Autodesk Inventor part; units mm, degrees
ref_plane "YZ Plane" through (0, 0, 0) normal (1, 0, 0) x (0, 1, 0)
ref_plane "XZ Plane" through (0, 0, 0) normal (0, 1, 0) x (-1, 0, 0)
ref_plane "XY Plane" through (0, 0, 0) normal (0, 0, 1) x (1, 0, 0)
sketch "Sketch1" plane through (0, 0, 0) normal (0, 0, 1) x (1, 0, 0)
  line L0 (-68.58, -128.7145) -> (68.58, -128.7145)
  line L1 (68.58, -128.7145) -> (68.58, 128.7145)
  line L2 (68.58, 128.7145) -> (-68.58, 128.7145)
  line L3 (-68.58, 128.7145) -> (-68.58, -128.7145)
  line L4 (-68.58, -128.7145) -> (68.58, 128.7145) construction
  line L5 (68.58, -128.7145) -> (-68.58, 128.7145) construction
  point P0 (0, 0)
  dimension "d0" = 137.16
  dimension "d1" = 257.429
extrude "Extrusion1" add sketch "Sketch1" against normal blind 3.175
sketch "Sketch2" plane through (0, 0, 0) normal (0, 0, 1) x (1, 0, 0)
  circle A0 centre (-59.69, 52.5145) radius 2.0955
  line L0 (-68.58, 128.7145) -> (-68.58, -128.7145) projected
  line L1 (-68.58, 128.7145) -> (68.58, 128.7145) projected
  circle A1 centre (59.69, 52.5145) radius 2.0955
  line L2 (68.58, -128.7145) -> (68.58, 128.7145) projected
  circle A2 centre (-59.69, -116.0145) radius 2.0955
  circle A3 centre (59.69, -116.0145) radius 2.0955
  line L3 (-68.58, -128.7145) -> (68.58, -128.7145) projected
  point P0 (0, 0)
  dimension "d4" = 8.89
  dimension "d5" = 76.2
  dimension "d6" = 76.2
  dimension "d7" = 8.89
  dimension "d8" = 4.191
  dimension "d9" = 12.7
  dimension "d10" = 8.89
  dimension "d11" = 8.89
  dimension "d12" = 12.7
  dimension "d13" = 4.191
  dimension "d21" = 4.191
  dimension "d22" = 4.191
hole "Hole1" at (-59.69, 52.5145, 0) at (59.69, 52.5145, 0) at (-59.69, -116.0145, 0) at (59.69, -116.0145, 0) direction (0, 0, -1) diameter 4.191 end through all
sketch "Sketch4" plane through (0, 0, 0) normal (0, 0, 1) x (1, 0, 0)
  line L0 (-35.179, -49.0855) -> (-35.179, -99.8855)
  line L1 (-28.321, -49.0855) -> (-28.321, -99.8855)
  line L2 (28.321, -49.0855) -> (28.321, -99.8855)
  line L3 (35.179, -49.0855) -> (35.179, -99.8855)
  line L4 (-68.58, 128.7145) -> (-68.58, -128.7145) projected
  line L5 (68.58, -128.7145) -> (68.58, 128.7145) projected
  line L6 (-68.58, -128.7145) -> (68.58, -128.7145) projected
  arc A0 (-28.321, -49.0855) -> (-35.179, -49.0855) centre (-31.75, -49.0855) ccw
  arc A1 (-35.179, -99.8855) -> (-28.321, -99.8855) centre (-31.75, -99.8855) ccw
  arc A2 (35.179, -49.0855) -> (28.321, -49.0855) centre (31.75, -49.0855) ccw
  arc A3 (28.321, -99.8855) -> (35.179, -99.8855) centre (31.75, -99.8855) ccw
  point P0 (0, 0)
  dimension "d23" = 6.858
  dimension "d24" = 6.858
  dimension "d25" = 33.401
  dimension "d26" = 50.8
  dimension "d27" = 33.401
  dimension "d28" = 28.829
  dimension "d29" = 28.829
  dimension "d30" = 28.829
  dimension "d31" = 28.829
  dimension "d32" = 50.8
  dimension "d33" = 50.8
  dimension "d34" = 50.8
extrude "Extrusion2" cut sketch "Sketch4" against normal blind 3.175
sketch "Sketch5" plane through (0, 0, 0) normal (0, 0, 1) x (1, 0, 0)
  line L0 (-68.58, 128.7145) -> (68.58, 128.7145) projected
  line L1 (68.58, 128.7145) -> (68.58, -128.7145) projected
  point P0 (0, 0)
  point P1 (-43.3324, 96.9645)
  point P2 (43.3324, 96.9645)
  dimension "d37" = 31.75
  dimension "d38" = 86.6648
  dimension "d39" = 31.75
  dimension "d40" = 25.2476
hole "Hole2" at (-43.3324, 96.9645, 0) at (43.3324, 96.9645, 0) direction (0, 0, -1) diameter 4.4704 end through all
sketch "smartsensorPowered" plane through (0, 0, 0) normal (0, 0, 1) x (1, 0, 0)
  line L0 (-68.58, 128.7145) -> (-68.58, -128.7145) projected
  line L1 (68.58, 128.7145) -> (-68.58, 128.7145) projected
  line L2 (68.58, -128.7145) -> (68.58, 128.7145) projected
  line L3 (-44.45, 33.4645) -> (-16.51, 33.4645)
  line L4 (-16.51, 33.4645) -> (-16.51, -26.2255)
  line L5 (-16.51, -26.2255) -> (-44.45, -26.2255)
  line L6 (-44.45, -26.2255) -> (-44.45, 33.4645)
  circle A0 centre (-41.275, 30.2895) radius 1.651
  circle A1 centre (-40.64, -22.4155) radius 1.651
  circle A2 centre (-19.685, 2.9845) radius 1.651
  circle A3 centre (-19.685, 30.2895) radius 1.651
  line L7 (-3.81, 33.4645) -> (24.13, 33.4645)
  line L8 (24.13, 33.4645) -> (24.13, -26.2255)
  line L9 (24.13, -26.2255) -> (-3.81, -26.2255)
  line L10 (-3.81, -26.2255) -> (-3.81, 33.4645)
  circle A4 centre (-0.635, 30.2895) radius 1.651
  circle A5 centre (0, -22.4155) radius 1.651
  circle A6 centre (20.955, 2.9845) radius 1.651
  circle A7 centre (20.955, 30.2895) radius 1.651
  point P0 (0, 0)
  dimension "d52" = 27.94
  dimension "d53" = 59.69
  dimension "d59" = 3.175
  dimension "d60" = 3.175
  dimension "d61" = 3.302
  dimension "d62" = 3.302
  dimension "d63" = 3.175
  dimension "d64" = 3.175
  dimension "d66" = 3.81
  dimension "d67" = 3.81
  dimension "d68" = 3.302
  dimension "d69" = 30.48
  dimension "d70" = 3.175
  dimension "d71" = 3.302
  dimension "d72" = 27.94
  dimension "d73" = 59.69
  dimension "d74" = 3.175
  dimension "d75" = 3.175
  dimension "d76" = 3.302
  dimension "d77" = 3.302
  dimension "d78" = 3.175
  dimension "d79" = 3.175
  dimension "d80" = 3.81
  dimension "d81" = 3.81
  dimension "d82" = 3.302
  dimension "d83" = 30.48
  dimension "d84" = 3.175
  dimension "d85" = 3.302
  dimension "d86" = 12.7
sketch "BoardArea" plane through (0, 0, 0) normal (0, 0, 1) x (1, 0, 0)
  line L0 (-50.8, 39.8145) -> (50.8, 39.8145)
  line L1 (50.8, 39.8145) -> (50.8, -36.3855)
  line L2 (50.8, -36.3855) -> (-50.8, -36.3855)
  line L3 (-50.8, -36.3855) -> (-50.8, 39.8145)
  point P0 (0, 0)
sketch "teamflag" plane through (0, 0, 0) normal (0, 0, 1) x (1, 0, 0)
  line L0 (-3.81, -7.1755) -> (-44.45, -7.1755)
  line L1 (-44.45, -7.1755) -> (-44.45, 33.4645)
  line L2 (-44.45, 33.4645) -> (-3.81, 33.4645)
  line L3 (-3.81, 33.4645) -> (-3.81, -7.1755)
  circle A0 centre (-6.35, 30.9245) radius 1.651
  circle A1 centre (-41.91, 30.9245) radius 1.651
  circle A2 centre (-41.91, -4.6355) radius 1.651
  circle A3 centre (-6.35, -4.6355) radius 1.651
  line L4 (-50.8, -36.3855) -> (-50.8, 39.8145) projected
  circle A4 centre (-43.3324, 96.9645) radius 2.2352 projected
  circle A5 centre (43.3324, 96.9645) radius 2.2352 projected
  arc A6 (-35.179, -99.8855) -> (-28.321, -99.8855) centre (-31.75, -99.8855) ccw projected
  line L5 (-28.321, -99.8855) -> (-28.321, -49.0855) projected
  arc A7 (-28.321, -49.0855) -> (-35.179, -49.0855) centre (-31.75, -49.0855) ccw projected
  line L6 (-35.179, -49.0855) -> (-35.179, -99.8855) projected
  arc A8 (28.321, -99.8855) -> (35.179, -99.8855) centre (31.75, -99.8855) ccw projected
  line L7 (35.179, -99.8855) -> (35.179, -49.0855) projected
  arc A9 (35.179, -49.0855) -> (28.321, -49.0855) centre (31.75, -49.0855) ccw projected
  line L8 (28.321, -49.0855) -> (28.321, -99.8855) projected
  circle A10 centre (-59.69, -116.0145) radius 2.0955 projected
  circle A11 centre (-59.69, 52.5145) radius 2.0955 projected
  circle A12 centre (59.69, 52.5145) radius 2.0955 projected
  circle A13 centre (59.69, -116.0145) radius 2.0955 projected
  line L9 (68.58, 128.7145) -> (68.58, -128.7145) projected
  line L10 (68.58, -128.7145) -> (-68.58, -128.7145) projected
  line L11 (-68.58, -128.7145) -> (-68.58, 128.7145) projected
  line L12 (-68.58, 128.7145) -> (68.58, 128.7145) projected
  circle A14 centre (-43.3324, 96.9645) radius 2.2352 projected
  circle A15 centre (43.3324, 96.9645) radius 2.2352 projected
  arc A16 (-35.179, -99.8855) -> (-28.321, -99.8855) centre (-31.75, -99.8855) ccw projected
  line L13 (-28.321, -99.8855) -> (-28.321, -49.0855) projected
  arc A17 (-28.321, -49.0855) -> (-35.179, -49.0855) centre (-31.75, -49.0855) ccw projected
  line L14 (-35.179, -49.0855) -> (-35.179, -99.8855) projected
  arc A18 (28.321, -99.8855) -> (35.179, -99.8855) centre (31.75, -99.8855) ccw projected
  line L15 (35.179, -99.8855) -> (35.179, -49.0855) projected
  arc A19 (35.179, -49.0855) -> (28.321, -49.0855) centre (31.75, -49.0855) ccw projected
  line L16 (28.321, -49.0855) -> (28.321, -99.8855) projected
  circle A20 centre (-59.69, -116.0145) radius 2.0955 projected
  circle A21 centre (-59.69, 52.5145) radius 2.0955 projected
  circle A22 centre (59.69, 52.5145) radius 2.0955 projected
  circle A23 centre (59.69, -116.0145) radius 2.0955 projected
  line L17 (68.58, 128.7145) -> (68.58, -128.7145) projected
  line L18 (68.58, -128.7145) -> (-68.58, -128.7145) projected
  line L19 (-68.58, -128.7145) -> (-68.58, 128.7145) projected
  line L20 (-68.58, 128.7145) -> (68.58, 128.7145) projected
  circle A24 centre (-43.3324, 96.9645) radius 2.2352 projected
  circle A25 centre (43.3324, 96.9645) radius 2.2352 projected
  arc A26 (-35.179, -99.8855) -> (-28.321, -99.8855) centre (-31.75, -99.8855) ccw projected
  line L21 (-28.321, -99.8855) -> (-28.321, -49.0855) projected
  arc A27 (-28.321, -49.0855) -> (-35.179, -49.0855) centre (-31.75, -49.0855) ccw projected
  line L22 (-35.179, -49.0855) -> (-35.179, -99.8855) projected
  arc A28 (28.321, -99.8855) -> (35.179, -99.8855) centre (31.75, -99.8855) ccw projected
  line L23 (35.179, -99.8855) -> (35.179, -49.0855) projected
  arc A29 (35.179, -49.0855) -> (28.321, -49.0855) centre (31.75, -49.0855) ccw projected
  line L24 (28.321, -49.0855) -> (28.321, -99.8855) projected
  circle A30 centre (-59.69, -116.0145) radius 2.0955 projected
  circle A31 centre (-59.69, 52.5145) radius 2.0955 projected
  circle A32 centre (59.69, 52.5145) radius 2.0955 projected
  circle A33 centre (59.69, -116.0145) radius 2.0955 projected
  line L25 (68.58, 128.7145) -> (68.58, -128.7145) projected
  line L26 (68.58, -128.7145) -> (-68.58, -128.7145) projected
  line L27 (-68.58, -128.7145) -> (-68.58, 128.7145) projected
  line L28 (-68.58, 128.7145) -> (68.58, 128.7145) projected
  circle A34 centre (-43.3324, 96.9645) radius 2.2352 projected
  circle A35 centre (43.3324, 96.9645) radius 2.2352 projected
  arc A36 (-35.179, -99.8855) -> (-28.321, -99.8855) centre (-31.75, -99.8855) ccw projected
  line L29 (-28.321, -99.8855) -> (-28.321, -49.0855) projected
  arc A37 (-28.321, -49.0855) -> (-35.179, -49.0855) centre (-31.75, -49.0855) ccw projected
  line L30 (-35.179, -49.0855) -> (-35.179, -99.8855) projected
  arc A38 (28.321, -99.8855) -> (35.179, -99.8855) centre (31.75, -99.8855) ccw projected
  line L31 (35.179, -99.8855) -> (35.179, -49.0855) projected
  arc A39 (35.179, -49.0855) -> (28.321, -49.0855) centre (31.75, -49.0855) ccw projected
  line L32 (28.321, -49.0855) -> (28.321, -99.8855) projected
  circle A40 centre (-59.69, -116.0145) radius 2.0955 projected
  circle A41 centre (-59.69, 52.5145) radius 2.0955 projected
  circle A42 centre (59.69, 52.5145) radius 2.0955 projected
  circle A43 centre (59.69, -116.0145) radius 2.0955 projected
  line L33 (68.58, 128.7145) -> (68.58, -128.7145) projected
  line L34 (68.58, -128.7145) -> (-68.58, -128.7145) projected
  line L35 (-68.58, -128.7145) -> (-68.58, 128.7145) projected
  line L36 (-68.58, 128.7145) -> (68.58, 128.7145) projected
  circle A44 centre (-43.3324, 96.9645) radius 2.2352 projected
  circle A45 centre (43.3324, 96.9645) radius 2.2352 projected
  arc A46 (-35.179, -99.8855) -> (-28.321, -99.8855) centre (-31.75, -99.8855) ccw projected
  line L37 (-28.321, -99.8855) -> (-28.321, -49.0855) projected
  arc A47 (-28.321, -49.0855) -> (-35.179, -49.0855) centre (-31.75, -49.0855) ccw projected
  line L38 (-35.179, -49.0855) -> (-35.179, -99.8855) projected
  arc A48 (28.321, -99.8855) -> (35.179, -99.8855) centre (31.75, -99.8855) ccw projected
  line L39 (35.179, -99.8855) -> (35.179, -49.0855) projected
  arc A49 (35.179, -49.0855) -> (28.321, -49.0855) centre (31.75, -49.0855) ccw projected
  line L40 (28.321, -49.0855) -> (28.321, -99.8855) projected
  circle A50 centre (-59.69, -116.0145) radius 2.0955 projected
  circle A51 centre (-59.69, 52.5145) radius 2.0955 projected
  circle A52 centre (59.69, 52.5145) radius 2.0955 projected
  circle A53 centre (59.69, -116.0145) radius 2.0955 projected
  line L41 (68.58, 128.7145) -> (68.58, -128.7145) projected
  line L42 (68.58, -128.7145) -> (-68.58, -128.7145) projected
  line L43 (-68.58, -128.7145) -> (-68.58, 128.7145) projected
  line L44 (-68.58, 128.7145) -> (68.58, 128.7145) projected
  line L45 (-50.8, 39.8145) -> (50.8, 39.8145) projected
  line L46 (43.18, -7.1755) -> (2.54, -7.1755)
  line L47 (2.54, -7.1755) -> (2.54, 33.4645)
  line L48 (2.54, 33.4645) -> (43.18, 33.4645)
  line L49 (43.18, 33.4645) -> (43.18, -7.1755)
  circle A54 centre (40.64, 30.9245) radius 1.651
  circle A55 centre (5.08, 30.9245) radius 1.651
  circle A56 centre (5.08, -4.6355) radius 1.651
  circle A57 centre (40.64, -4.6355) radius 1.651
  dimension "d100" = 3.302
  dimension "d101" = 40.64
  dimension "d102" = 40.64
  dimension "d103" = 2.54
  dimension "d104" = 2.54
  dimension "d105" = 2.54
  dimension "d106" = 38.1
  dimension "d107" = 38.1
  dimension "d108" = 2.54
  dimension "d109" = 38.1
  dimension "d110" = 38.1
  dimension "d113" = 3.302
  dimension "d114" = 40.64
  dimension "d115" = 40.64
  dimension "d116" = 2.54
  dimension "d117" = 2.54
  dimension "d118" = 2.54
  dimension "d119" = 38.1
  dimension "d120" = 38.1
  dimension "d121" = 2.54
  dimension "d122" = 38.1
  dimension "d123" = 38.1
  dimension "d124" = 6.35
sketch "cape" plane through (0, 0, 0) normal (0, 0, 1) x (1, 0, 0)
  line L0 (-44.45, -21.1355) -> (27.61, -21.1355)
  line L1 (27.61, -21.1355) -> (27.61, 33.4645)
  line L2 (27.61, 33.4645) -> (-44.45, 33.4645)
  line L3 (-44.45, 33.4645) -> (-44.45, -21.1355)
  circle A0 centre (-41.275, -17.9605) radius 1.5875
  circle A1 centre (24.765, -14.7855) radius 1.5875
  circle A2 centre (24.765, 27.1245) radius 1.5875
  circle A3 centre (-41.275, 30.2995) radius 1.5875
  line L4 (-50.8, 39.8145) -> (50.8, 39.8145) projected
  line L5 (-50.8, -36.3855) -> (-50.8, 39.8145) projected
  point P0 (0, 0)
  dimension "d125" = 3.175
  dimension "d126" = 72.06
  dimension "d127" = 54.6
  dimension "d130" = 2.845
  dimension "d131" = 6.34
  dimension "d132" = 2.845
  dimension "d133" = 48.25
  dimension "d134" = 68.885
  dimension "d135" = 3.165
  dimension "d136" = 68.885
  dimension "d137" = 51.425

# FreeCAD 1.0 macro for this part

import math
import FreeCAD as App
import Part
import Sketcher
from FreeCAD import Vector
Q = App.Units.Quantity

doc = App.newDocument("Part")
body = doc.addObject("PartDesign::Body", "Body")

# Sketch on XY plane
sketch1 = doc.addObject("Sketcher::SketchObject", "Sketch")
body.addObject(sketch1)
sketch1.AttachmentSupport = (doc.XY_Plane, [""])
sketch1.MapMode = "FlatFace"
sketch1.addGeometry(Part.LineSegment(Vector(-69, 129, 0), Vector(-69, -129, 0)), False)
sketch1.addGeometry(Part.LineSegment(Vector(-69, -129, 0), Vector(69, -129, 0)), False)
sketch1.addGeometry(Part.LineSegment(Vector(69, -129, 0), Vector(69, 129, 0)), False)
sketch1.addGeometry(Part.LineSegment(Vector(69, 129, 0), Vector(-69, 129, 0)), False)
sketch1.addConstraint(Sketcher.Constraint("Coincident", 0, 2, 1, 1))
sketch1.addConstraint(Sketcher.Constraint("Coincident", 1, 2, 2, 1))
sketch1.addConstraint(Sketcher.Constraint("Coincident", 2, 2, 3, 1))
sketch1.addConstraint(Sketcher.Constraint("Coincident", 3, 2, 0, 1))
sketch1.addConstraint(Sketcher.Constraint("Vertical", 0))
sketch1.addConstraint(Sketcher.Constraint("Horizontal", 1))
sketch1.addConstraint(Sketcher.Constraint("Vertical", 2))
sketch1.addConstraint(Sketcher.Constraint("Horizontal", 3))
sketch1.addConstraint(Sketcher.Constraint("Symmetric", 0, 2, 2, 2, -1, 1))
sketch1.addConstraint(Sketcher.Constraint("DistanceX", 1, 1, 1, 2, Q("5.4 in")))
sketch1.addConstraint(Sketcher.Constraint("DistanceY", 0, 2, 0, 1, Q("10.135 in")))
pad1 = doc.addObject("PartDesign::Pad", "Pad")
body.addObject(pad1)
pad1.Profile = sketch1
pad1.Length = Q("0.125 in")
pad1.Reversed = True

# Sketch on XY plane
sketch2 = doc.addObject("Sketcher::SketchObject", "Sketch001")
body.addObject(sketch2)
sketch2.AttachmentSupport = (doc.XY_Plane, [""])
sketch2.MapMode = "FlatFace"
sketch2.addGeometry(Part.Circle(Vector(-59.7, 52.5, 0), Vector(0, 0, 1), 2.1), False)
sketch2.addGeometry(Part.Circle(Vector(59.7, 52.5, 0), Vector(0, 0, 1), 2.1), False)
sketch2.addGeometry(Part.Circle(Vector(-59.7, -116, 0), Vector(0, 0, 1), 2.1), False)
sketch2.addGeometry(Part.Circle(Vector(59.7, -116, 0), Vector(0, 0, 1), 2.1), False)
sketch2.addConstraint(Sketcher.Constraint("Equal", 0, 1))
sketch2.addConstraint(Sketcher.Constraint("Equal", 1, 2))
sketch2.addConstraint(Sketcher.Constraint("Equal", 2, 3))
sketch2.addConstraint(Sketcher.Constraint("Symmetric", 0, 3, 1, 3, -2))
sketch2.addConstraint(Sketcher.Constraint("Symmetric", 2, 3, 3, 3, -2))
sketch2.addConstraint(Sketcher.Constraint("Vertical", 0, 3, 2, 3))
sketch2.addConstraint(Sketcher.Constraint("Diameter", 0, Q("0.165 in")))
sketch2.addConstraint(Sketcher.Constraint("DistanceX", 0, 3, 1, 3, Q("4.7 in")))
sketch2.addConstraint(Sketcher.Constraint("DistanceY", 2, 3, 0, 3, Q("6.635 in")))
sketch2.addConstraint(Sketcher.Constraint("DistanceY", -1, 1, 0, 3, Q("2.0675 in")))
doc.recompute()
hole = doc.addObject("PartDesign::Hole", "Hole")
body.addObject(hole)
hole.Profile = sketch2
hole.ThreadType = "None"
hole.Diameter = Q("0.165 in")
hole.DepthType = "ThroughAll"

# Sketch on XY plane
sketch3 = doc.addObject("Sketcher::SketchObject", "Sketch002")
body.addObject(sketch3)
sketch3.AttachmentSupport = (doc.XY_Plane, [""])
sketch3.MapMode = "FlatFace"
sketch3.addGeometry(Part.ArcOfCircle(Part.Circle(Vector(-31.8, -49.1, 0), Vector(0, 0, 1), 3.4), math.radians(0), math.radians(180)), False)
sketch3.addGeometry(Part.LineSegment(Vector(-35.2, -49.1, 0), Vector(-35.2, -99.9, 0)), False)
sketch3.addGeometry(Part.ArcOfCircle(Part.Circle(Vector(-31.8, -99.9, 0), Vector(0, 0, 1), 3.4), math.radians(180), math.radians(360)), False)
sketch3.addGeometry(Part.LineSegment(Vector(-28.3, -99.9, 0), Vector(-28.3, -49.1, 0)), False)
sketch3.addGeometry(Part.ArcOfCircle(Part.Circle(Vector(31.8, -49.1, 0), Vector(0, 0, 1), 3.4), math.radians(0), math.radians(180)), False)
sketch3.addGeometry(Part.LineSegment(Vector(28.3, -49.1, 0), Vector(28.3, -99.9, 0)), False)
sketch3.addGeometry(Part.ArcOfCircle(Part.Circle(Vector(31.8, -99.9, 0), Vector(0, 0, 1), 3.4), math.radians(180), math.radians(360)), False)
sketch3.addGeometry(Part.LineSegment(Vector(35.2, -99.9, 0), Vector(35.2, -49.1, 0)), False)
sketch3.addConstraint(Sketcher.Constraint("Tangent", 0, 2, 1, 1))
sketch3.addConstraint(Sketcher.Constraint("Tangent", 1, 2, 2, 1))
sketch3.addConstraint(Sketcher.Constraint("Tangent", 2, 2, 3, 1))
sketch3.addConstraint(Sketcher.Constraint("Tangent", 3, 2, 0, 1))
sketch3.addConstraint(Sketcher.Constraint("Tangent", 4, 2, 5, 1))
sketch3.addConstraint(Sketcher.Constraint("Tangent", 5, 2, 6, 1))
sketch3.addConstraint(Sketcher.Constraint("Tangent", 6, 2, 7, 1))
sketch3.addConstraint(Sketcher.Constraint("Tangent", 7, 2, 4, 1))
sketch3.addConstraint(Sketcher.Constraint("Vertical", 1))
sketch3.addConstraint(Sketcher.Constraint("Vertical", 3))
sketch3.addConstraint(Sketcher.Constraint("Vertical", 5))
sketch3.addConstraint(Sketcher.Constraint("Vertical", 7))
sketch3.addConstraint(Sketcher.Constraint("Equal", 2, 4))
sketch3.addConstraint(Sketcher.Constraint("Symmetric", 0, 3, 4, 3, -2))
sketch3.addConstraint(Sketcher.Constraint("Horizontal", 2, 3, 6, 3))
sketch3.addConstraint(Sketcher.Constraint("DistanceY", 1, 2, 1, 1, Q("2 in")))
sketch3.addConstraint(Sketcher.Constraint("Radius", 0, Q("0.135 in")))
sketch3.addConstraint(Sketcher.Constraint("DistanceX", 0, 3, 4, 3, Q("2.5 in")))
sketch3.addConstraint(Sketcher.Constraint("DistanceY", 0, 3, -1, 1, Q("1.9325 in")))
pocket1 = doc.addObject("PartDesign::Pocket", "Pocket")
body.addObject(pocket1)
pocket1.Profile = sketch3
pocket1.Length = Q("0.125 in")

# Sketch on XY plane
sketch4 = doc.addObject("Sketcher::SketchObject", "Sketch003")
body.addObject(sketch4)
sketch4.AttachmentSupport = (doc.XY_Plane, [""])
sketch4.MapMode = "FlatFace"
sketch4.addGeometry(Part.Circle(Vector(-43.3, 97, 0), Vector(0, 0, 1), 2.2), False)
sketch4.addGeometry(Part.Circle(Vector(43.3, 97, 0), Vector(0, 0, 1), 2.2), False)
sketch4.addConstraint(Sketcher.Constraint("Equal", 0, 1))
sketch4.addConstraint(Sketcher.Constraint("Symmetric", 0, 3, 1, 3, -2))
sketch4.addConstraint(Sketcher.Constraint("Diameter", 0, Q("0.176 in")))
sketch4.addConstraint(Sketcher.Constraint("DistanceX", 0, 3, -1, 1, Q("1.706 in")))
sketch4.addConstraint(Sketcher.Constraint("DistanceY", -1, 1, 0, 3, Q("3.8175 in")))
doc.recompute()
hole2 = doc.addObject("PartDesign::Hole", "Hole001")
body.addObject(hole2)
hole2.Profile = sketch4
hole2.ThreadType = "None"
hole2.Diameter = Q("0.176 in")
hole2.DepthType = "ThroughAll"

doc.recompute()
